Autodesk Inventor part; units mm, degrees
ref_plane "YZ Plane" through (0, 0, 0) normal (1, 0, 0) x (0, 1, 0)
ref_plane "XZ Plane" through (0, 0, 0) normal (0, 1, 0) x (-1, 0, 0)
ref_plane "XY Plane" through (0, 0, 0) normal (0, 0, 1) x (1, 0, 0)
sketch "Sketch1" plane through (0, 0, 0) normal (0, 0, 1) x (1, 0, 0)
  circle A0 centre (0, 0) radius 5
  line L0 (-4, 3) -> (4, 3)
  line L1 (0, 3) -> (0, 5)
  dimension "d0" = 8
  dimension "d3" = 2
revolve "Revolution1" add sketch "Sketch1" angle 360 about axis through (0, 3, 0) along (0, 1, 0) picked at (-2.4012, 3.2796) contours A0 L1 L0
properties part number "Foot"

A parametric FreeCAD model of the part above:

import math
import FreeCAD as App
import Part
import Sketcher
Q = App.Units.Quantity

doc = App.newDocument("Part")
params = doc.addObject("Spreadsheet::Sheet", "Params")
for row, (alias, value) in enumerate([
    ("sketch1_height", "2 mm"),
    ("sketch1_radius", "5 mm"),
    ("revolution_angle", "360 deg"),
], start=1):
    params.set(f"A{row}", alias)
    params.set(f"B{row}", "=" + value)
    params.setAlias(f"B{row}", alias)

body = doc.addObject("PartDesign::Body", "Body")

sketch1 = doc.addObject("Sketcher::SketchObject", "Sketch")
body.addObject(sketch1)
sketch1.AttachmentSupport = (doc.XY_Plane, [""])
sketch1.MapMode = "FlatFace"
sketch1.addGeometry(Part.ArcOfCircle(Part.Circle(App.Vector(0, 0, 0), App.Vector(0, 0, 1), 5), math.radians(90), math.radians(143.130102)), False)
sketch1.addGeometry(Part.LineSegment(App.Vector(-4, 3, 0), App.Vector(0, 3, 0)), False)
sketch1.addGeometry(Part.LineSegment(App.Vector(0, 3, 0), App.Vector(0, 5, 0)), False)
sketch1.addConstraint(Sketcher.Constraint("Coincident", 0, 2, 1, 1))
sketch1.addConstraint(Sketcher.Constraint("Coincident", 1, 2, 2, 1))
sketch1.addConstraint(Sketcher.Constraint("Coincident", 2, 2, 0, 1))
sketch1.addConstraint(Sketcher.Constraint("Horizontal", 1))
sketch1.addConstraint(Sketcher.Constraint("Vertical", 2))
sketch1.addConstraint(Sketcher.Constraint("Coincident", 0, 3, -1, 1))
sketch1.addConstraint(Sketcher.Constraint("PointOnObject", 1, 2, -2))
sketch1.addConstraint(Sketcher.Constraint("DistanceY", 2, 1, 2, 2, Q("2 mm")))
sketch1.addConstraint(Sketcher.Constraint("Radius", 0, Q("5 mm")))
sketch1.setExpression("Constraints[7]", "Params.sketch1_height")
sketch1.setExpression("Constraints[8]", "Params.sketch1_radius")
revolution = doc.addObject("PartDesign::Revolution", "Revolution")
body.addObject(revolution)
revolution.Profile = sketch1
revolution.ReferenceAxis = (sketch1, ["V_Axis"])
revolution.setExpression("Angle", "Params.revolution_angle")

doc.recompute()
